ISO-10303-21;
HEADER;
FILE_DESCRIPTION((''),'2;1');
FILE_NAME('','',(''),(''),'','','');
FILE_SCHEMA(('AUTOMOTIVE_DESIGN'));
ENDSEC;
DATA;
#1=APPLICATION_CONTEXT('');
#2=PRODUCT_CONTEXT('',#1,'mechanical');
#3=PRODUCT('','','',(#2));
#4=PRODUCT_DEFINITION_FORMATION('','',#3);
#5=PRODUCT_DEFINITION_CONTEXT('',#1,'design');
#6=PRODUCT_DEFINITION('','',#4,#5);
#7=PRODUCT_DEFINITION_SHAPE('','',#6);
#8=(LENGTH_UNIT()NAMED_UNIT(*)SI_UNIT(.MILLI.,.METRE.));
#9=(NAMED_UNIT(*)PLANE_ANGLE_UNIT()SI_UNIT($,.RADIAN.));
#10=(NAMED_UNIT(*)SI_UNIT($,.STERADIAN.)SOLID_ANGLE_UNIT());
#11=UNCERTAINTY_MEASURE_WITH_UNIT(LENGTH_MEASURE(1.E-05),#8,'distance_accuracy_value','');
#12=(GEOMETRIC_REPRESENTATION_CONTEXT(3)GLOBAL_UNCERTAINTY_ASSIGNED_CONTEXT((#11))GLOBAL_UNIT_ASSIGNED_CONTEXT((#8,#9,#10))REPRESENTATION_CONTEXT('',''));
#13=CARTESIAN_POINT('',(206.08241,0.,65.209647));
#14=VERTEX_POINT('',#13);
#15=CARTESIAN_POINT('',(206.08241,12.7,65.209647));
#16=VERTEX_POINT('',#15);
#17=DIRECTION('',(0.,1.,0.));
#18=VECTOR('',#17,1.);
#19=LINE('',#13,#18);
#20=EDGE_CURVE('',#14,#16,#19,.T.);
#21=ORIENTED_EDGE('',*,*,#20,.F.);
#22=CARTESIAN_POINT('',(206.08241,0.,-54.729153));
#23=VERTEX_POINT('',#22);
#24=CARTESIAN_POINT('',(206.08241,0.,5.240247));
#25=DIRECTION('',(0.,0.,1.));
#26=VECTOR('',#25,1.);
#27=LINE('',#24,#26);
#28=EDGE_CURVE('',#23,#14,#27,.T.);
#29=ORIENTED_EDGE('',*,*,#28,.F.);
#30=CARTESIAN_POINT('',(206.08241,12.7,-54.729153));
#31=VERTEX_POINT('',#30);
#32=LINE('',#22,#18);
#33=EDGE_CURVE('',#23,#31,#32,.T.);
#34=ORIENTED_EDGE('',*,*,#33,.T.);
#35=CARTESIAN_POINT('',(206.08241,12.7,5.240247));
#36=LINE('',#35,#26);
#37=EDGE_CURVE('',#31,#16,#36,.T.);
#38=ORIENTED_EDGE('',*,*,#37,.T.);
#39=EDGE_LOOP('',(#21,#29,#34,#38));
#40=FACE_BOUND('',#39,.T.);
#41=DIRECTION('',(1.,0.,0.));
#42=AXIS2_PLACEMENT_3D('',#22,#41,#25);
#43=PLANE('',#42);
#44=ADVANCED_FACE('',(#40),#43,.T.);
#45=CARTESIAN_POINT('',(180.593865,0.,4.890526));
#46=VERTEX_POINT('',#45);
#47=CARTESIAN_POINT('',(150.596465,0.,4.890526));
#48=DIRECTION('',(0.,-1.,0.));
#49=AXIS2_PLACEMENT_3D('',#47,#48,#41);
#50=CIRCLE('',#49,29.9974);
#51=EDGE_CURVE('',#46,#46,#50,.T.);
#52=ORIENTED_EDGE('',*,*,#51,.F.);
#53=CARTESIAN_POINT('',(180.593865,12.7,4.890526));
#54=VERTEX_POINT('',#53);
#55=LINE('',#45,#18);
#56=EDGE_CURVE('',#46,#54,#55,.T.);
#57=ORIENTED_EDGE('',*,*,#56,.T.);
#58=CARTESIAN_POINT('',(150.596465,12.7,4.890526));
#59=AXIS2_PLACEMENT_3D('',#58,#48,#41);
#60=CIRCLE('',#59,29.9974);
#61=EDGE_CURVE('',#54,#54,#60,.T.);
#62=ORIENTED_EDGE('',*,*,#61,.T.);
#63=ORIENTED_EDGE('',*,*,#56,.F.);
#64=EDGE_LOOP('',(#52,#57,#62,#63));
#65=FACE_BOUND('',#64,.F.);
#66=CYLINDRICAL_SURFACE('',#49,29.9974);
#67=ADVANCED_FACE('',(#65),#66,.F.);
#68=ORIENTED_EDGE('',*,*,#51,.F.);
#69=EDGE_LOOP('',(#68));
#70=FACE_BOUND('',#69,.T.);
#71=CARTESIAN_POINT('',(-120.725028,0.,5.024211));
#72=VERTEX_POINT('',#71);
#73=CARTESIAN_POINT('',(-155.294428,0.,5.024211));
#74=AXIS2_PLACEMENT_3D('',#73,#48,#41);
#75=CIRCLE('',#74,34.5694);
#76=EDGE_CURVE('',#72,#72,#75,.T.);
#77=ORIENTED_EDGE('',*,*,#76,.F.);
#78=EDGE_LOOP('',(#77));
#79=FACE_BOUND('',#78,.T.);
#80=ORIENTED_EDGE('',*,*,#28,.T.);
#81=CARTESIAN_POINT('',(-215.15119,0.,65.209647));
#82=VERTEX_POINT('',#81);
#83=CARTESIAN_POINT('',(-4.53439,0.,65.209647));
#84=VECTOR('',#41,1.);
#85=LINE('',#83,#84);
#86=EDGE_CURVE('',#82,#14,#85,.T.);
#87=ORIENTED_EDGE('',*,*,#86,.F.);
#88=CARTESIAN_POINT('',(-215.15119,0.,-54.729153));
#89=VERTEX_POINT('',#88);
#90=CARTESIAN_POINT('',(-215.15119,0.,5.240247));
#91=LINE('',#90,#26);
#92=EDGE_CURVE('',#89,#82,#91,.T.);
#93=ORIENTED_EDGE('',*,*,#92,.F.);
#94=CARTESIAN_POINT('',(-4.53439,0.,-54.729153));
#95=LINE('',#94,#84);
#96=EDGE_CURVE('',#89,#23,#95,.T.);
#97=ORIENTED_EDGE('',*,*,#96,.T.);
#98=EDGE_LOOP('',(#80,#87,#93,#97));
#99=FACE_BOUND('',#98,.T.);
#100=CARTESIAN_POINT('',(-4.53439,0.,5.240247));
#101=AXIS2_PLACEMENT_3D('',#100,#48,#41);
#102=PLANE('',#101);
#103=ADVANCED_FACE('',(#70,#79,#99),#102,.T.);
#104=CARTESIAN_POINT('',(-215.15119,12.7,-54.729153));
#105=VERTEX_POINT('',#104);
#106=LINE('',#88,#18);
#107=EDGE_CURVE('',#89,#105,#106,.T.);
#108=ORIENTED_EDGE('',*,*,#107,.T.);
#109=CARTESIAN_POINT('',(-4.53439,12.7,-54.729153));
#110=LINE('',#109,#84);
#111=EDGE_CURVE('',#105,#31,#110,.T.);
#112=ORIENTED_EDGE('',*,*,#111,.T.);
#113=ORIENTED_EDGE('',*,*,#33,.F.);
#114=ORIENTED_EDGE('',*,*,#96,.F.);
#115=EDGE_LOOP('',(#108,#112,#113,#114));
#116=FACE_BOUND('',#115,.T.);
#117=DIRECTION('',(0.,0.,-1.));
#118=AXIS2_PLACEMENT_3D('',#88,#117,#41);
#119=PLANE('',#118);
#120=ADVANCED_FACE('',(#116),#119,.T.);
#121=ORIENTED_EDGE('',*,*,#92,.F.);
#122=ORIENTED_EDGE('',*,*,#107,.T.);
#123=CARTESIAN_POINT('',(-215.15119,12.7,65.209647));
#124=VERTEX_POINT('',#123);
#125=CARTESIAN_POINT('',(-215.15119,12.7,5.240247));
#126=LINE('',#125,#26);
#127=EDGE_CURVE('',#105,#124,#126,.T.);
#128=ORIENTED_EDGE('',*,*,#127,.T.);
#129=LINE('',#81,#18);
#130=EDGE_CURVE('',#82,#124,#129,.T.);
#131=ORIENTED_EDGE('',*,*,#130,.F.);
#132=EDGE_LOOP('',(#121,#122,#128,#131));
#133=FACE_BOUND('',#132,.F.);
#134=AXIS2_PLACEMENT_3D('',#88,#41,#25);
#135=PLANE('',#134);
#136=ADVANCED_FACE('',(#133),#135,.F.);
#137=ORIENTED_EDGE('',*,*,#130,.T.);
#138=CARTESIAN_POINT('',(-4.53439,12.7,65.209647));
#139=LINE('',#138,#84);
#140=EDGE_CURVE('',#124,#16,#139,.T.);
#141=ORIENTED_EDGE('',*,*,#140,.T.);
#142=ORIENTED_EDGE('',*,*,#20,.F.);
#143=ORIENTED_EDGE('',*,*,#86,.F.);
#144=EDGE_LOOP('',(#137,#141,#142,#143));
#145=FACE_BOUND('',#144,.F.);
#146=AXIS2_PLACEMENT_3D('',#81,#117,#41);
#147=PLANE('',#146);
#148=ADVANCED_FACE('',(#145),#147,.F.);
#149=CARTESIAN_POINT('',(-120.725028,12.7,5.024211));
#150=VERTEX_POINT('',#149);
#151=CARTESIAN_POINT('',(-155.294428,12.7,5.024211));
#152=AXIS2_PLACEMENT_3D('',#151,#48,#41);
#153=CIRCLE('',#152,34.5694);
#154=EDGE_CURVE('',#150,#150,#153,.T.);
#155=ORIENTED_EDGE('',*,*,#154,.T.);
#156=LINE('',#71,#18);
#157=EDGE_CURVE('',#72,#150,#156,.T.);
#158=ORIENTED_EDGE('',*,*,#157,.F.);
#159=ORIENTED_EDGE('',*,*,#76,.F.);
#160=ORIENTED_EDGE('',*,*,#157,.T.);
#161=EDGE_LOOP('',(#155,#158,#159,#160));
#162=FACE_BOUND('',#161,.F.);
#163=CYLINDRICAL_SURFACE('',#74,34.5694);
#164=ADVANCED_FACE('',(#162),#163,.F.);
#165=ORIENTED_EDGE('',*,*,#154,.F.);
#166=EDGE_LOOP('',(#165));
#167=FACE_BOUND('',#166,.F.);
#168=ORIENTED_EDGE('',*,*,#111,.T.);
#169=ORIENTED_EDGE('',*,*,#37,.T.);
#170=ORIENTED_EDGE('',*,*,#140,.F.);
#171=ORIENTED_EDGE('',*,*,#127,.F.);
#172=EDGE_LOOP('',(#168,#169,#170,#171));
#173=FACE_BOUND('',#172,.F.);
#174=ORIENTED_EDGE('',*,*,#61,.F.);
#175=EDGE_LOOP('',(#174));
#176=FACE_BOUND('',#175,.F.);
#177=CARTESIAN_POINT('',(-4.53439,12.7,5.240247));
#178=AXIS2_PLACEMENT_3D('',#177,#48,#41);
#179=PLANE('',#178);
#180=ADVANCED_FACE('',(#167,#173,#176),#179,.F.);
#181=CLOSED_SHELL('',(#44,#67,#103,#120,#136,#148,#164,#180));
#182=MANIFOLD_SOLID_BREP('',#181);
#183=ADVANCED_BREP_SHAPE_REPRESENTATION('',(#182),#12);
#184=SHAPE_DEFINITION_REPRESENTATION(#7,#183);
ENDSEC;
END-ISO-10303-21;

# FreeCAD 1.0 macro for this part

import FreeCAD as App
import Part
import Sketcher

V = App.Vector
Q = App.Units.Quantity

doc = App.newDocument("Part")
body = doc.addObject("PartDesign::Body", "Body")

sketch1 = body.newObject("Sketcher::SketchObject", "Sketch")
sketch1.AttachmentSupport = (doc.getObject("XZ_Plane"), [""])
sketch1.MapMode = "FlatFace"
sketch1.addGeometry([
    Part.LineSegment(V(-215, 65, 0), V(-215, -55, 0)),
    Part.LineSegment(V(-215, -55, 0), V(206, -55, 0)),
    Part.LineSegment(V(206, -55, 0), V(206, 65, 0)),
    Part.LineSegment(V(206, 65, 0), V(-215, 65, 0)),
    Part.Circle(V(151, 5, 0), V(0, 0, 1), 30),
    Part.Circle(V(-155, 5, 0), V(0, 0, 1), 35),
], False)
sketch1.addConstraint([
    Sketcher.Constraint("Coincident", 0, 2, 1, 1),
    Sketcher.Constraint("Coincident", 1, 2, 2, 1),
    Sketcher.Constraint("Coincident", 2, 2, 3, 1),
    Sketcher.Constraint("Coincident", 3, 2, 0, 1),
    Sketcher.Constraint("Vertical", 0),
    Sketcher.Constraint("Horizontal", 1),
    Sketcher.Constraint("Vertical", 2),
    Sketcher.Constraint("Horizontal", 3),
    Sketcher.Constraint("Diameter", 4, Q("2.362 in")),
    Sketcher.Constraint("Diameter", 5, Q("2.722 in")),
    Sketcher.Constraint("DistanceX", 1, 1, 1, 2, Q("16.584 in")),
    Sketcher.Constraint("DistanceY", 0, 2, 0, 1, Q("4.722 in")),
    Sketcher.Constraint("DistanceX", 5, 3, -1, 1, 155.294428),
    Sketcher.Constraint("DistanceY", -1, 1, 5, 3, 5.024211),
    Sketcher.Constraint("DistanceX", 0, 2, -1, 1, 215.15119),
    Sketcher.Constraint("DistanceY", 0, 2, 4, 3, 59.619679),
    Sketcher.Constraint("DistanceX", -1, 1, 4, 3, 150.596465),
    Sketcher.Constraint("DistanceY", -1, 1, 4, 3, 4.890526),
])
pad1 = body.newObject("PartDesign::Pad", "Pad")
pad1.Profile = sketch1
pad1.Length = Q("0.5 in")
pad1.Reversed = True

doc.recompute()
